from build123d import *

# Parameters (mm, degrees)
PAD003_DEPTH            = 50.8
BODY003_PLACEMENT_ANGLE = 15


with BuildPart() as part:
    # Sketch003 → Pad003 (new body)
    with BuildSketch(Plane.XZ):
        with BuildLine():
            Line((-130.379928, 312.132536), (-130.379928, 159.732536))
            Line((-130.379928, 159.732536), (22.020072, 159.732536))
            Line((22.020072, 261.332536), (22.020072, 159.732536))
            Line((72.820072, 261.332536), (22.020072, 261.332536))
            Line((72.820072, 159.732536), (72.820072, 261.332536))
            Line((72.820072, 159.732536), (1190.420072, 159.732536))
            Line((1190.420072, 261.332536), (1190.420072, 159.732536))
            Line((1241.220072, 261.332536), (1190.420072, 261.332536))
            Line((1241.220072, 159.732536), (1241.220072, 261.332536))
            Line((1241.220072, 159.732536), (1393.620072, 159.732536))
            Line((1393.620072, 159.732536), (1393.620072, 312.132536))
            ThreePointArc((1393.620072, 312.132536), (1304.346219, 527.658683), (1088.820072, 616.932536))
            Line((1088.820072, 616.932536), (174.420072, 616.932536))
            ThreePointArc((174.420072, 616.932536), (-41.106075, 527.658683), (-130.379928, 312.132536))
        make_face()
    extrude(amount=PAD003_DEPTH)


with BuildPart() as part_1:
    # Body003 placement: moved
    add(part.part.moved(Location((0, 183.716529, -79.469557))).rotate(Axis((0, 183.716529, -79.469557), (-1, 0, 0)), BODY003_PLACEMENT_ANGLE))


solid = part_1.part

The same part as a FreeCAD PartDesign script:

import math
import FreeCAD as App
import Part
import Sketcher
Q = App.Units.Quantity

doc = App.newDocument("Part")
body = doc.addObject("PartDesign::Body", "Body")

sketch1 = body.newObject("Sketcher::SketchObject", "Sketch")
sketch1.AttachmentSupport = (doc.getObject("XZ_Plane"), [""])
sketch1.MapMode = "FlatFace"
sketch1.addGeometry(Part.LineSegment(App.Vector(-130, 312, 0), App.Vector(-130, 160, 0)), False)
sketch1.addGeometry(Part.LineSegment(App.Vector(-130, 160, 0), App.Vector(22, 160, 0)), False)
sketch1.addGeometry(Part.LineSegment(App.Vector(22, 160, 0), App.Vector(22, 261, 0)), False)
sketch1.addGeometry(Part.LineSegment(App.Vector(22, 261, 0), App.Vector(73, 261, 0)), False)
sketch1.addGeometry(Part.LineSegment(App.Vector(73, 261, 0), App.Vector(73, 160, 0)), False)
sketch1.addGeometry(Part.LineSegment(App.Vector(73, 160, 0), App.Vector(1190, 160, 0)), False)
sketch1.addGeometry(Part.LineSegment(App.Vector(1190, 160, 0), App.Vector(1190, 261, 0)), False)
sketch1.addGeometry(Part.LineSegment(App.Vector(1190, 261, 0), App.Vector(1241, 261, 0)), False)
sketch1.addGeometry(Part.LineSegment(App.Vector(1241, 261, 0), App.Vector(1241, 160, 0)), False)
sketch1.addGeometry(Part.LineSegment(App.Vector(1241, 160, 0), App.Vector(1394, 160, 0)), False)
sketch1.addGeometry(Part.LineSegment(App.Vector(1394, 160, 0), App.Vector(1394, 312, 0)), False)
sketch1.addGeometry(Part.ArcOfCircle(Part.Circle(App.Vector(1089, 312, 0), App.Vector(0, 0, 1), 305), math.radians(0), math.radians(90)), False)
sketch1.addGeometry(Part.LineSegment(App.Vector(1089, 617, 0), App.Vector(174, 617, 0)), False)
sketch1.addGeometry(Part.ArcOfCircle(Part.Circle(App.Vector(174, 312, 0), App.Vector(0, 0, 1), 305), math.radians(90), math.radians(180)), False)
sketch1.addConstraint(Sketcher.Constraint("Coincident", 0, 2, 1, 1))
sketch1.addConstraint(Sketcher.Constraint("Coincident", 1, 2, 2, 1))
sketch1.addConstraint(Sketcher.Constraint("Coincident", 2, 2, 3, 1))
sketch1.addConstraint(Sketcher.Constraint("Coincident", 3, 2, 4, 1))
sketch1.addConstraint(Sketcher.Constraint("Coincident", 4, 2, 5, 1))
sketch1.addConstraint(Sketcher.Constraint("Coincident", 5, 2, 6, 1))
sketch1.addConstraint(Sketcher.Constraint("Coincident", 6, 2, 7, 1))
sketch1.addConstraint(Sketcher.Constraint("Coincident", 7, 2, 8, 1))
sketch1.addConstraint(Sketcher.Constraint("Coincident", 8, 2, 9, 1))
sketch1.addConstraint(Sketcher.Constraint("Coincident", 9, 2, 10, 1))
sketch1.addConstraint(Sketcher.Constraint("Tangent", 10, 2, 11, 1))
sketch1.addConstraint(Sketcher.Constraint("Tangent", 11, 2, 12, 1))
sketch1.addConstraint(Sketcher.Constraint("Tangent", 12, 2, 13, 1))
sketch1.addConstraint(Sketcher.Constraint("Tangent", 13, 2, 0, 1))
sketch1.addConstraint(Sketcher.Constraint("Vertical", 0))
sketch1.addConstraint(Sketcher.Constraint("Horizontal", 1))
sketch1.addConstraint(Sketcher.Constraint("Vertical", 2))
sketch1.addConstraint(Sketcher.Constraint("Horizontal", 3))
sketch1.addConstraint(Sketcher.Constraint("Vertical", 4))
sketch1.addConstraint(Sketcher.Constraint("Horizontal", 5))
sketch1.addConstraint(Sketcher.Constraint("Vertical", 6))
sketch1.addConstraint(Sketcher.Constraint("Horizontal", 7))
sketch1.addConstraint(Sketcher.Constraint("Vertical", 8))
sketch1.addConstraint(Sketcher.Constraint("Horizontal", 9))
sketch1.addConstraint(Sketcher.Constraint("Vertical", 10))
sketch1.addConstraint(Sketcher.Constraint("Horizontal", 12))
sketch1.addConstraint(Sketcher.Constraint("Equal", 11, 13))
sketch1.addConstraint(Sketcher.Constraint("Horizontal", 1, 2, 4, 2))
sketch1.addConstraint(Sketcher.Constraint("Horizontal", 3, 2, 6, 2))
sketch1.addConstraint(Sketcher.Constraint("Horizontal", 5, 2, 8, 2))
sketch1.addConstraint(Sketcher.Constraint("Equal", 3, 7))
sketch1.addConstraint(Sketcher.Constraint("Equal", 1, 9))
sketch1.addConstraint(Sketcher.Constraint("Equal", 9, 0))
sketch1.addConstraint(Sketcher.Constraint("Radius", 11, Q("12 in")))
sketch1.addConstraint(Sketcher.Constraint("DistanceX", 1, 1, 1, 2, Q("6 in")))
sketch1.addConstraint(Sketcher.Constraint("DistanceX", 3, 1, 3, 2, Q("2 in")))
sketch1.addConstraint(Sketcher.Constraint("DistanceX", 5, 1, 5, 2, Q("44 in")))
sketch1.addConstraint(Sketcher.Constraint("DistanceY", 2, 1, 2, 2, Q("4 in")))
sketch1.addConstraint(Sketcher.Constraint("DistanceX", -1, 1, 13, 3, 174.420072))
sketch1.addConstraint(Sketcher.Constraint("DistanceY", -1, 1, 11, 3, 312.132536))
pad1 = body.newObject("PartDesign::Pad", "Pad")
pad1.Profile = sketch1
pad1.Length = Q("2 in")
body2 = doc.addObject("PartDesign::Body", "Body001")
doc.recompute()

body.Placement = App.Placement(App.Vector(0, 183.716529, -79.469557), App.Rotation(App.Vector(-1, 0, 0), 15))
boolean = body2.newObject("PartDesign::Boolean", "Boolean")
boolean.Type = "Fuse"
boolean.addObjects([body])

doc.recompute()
